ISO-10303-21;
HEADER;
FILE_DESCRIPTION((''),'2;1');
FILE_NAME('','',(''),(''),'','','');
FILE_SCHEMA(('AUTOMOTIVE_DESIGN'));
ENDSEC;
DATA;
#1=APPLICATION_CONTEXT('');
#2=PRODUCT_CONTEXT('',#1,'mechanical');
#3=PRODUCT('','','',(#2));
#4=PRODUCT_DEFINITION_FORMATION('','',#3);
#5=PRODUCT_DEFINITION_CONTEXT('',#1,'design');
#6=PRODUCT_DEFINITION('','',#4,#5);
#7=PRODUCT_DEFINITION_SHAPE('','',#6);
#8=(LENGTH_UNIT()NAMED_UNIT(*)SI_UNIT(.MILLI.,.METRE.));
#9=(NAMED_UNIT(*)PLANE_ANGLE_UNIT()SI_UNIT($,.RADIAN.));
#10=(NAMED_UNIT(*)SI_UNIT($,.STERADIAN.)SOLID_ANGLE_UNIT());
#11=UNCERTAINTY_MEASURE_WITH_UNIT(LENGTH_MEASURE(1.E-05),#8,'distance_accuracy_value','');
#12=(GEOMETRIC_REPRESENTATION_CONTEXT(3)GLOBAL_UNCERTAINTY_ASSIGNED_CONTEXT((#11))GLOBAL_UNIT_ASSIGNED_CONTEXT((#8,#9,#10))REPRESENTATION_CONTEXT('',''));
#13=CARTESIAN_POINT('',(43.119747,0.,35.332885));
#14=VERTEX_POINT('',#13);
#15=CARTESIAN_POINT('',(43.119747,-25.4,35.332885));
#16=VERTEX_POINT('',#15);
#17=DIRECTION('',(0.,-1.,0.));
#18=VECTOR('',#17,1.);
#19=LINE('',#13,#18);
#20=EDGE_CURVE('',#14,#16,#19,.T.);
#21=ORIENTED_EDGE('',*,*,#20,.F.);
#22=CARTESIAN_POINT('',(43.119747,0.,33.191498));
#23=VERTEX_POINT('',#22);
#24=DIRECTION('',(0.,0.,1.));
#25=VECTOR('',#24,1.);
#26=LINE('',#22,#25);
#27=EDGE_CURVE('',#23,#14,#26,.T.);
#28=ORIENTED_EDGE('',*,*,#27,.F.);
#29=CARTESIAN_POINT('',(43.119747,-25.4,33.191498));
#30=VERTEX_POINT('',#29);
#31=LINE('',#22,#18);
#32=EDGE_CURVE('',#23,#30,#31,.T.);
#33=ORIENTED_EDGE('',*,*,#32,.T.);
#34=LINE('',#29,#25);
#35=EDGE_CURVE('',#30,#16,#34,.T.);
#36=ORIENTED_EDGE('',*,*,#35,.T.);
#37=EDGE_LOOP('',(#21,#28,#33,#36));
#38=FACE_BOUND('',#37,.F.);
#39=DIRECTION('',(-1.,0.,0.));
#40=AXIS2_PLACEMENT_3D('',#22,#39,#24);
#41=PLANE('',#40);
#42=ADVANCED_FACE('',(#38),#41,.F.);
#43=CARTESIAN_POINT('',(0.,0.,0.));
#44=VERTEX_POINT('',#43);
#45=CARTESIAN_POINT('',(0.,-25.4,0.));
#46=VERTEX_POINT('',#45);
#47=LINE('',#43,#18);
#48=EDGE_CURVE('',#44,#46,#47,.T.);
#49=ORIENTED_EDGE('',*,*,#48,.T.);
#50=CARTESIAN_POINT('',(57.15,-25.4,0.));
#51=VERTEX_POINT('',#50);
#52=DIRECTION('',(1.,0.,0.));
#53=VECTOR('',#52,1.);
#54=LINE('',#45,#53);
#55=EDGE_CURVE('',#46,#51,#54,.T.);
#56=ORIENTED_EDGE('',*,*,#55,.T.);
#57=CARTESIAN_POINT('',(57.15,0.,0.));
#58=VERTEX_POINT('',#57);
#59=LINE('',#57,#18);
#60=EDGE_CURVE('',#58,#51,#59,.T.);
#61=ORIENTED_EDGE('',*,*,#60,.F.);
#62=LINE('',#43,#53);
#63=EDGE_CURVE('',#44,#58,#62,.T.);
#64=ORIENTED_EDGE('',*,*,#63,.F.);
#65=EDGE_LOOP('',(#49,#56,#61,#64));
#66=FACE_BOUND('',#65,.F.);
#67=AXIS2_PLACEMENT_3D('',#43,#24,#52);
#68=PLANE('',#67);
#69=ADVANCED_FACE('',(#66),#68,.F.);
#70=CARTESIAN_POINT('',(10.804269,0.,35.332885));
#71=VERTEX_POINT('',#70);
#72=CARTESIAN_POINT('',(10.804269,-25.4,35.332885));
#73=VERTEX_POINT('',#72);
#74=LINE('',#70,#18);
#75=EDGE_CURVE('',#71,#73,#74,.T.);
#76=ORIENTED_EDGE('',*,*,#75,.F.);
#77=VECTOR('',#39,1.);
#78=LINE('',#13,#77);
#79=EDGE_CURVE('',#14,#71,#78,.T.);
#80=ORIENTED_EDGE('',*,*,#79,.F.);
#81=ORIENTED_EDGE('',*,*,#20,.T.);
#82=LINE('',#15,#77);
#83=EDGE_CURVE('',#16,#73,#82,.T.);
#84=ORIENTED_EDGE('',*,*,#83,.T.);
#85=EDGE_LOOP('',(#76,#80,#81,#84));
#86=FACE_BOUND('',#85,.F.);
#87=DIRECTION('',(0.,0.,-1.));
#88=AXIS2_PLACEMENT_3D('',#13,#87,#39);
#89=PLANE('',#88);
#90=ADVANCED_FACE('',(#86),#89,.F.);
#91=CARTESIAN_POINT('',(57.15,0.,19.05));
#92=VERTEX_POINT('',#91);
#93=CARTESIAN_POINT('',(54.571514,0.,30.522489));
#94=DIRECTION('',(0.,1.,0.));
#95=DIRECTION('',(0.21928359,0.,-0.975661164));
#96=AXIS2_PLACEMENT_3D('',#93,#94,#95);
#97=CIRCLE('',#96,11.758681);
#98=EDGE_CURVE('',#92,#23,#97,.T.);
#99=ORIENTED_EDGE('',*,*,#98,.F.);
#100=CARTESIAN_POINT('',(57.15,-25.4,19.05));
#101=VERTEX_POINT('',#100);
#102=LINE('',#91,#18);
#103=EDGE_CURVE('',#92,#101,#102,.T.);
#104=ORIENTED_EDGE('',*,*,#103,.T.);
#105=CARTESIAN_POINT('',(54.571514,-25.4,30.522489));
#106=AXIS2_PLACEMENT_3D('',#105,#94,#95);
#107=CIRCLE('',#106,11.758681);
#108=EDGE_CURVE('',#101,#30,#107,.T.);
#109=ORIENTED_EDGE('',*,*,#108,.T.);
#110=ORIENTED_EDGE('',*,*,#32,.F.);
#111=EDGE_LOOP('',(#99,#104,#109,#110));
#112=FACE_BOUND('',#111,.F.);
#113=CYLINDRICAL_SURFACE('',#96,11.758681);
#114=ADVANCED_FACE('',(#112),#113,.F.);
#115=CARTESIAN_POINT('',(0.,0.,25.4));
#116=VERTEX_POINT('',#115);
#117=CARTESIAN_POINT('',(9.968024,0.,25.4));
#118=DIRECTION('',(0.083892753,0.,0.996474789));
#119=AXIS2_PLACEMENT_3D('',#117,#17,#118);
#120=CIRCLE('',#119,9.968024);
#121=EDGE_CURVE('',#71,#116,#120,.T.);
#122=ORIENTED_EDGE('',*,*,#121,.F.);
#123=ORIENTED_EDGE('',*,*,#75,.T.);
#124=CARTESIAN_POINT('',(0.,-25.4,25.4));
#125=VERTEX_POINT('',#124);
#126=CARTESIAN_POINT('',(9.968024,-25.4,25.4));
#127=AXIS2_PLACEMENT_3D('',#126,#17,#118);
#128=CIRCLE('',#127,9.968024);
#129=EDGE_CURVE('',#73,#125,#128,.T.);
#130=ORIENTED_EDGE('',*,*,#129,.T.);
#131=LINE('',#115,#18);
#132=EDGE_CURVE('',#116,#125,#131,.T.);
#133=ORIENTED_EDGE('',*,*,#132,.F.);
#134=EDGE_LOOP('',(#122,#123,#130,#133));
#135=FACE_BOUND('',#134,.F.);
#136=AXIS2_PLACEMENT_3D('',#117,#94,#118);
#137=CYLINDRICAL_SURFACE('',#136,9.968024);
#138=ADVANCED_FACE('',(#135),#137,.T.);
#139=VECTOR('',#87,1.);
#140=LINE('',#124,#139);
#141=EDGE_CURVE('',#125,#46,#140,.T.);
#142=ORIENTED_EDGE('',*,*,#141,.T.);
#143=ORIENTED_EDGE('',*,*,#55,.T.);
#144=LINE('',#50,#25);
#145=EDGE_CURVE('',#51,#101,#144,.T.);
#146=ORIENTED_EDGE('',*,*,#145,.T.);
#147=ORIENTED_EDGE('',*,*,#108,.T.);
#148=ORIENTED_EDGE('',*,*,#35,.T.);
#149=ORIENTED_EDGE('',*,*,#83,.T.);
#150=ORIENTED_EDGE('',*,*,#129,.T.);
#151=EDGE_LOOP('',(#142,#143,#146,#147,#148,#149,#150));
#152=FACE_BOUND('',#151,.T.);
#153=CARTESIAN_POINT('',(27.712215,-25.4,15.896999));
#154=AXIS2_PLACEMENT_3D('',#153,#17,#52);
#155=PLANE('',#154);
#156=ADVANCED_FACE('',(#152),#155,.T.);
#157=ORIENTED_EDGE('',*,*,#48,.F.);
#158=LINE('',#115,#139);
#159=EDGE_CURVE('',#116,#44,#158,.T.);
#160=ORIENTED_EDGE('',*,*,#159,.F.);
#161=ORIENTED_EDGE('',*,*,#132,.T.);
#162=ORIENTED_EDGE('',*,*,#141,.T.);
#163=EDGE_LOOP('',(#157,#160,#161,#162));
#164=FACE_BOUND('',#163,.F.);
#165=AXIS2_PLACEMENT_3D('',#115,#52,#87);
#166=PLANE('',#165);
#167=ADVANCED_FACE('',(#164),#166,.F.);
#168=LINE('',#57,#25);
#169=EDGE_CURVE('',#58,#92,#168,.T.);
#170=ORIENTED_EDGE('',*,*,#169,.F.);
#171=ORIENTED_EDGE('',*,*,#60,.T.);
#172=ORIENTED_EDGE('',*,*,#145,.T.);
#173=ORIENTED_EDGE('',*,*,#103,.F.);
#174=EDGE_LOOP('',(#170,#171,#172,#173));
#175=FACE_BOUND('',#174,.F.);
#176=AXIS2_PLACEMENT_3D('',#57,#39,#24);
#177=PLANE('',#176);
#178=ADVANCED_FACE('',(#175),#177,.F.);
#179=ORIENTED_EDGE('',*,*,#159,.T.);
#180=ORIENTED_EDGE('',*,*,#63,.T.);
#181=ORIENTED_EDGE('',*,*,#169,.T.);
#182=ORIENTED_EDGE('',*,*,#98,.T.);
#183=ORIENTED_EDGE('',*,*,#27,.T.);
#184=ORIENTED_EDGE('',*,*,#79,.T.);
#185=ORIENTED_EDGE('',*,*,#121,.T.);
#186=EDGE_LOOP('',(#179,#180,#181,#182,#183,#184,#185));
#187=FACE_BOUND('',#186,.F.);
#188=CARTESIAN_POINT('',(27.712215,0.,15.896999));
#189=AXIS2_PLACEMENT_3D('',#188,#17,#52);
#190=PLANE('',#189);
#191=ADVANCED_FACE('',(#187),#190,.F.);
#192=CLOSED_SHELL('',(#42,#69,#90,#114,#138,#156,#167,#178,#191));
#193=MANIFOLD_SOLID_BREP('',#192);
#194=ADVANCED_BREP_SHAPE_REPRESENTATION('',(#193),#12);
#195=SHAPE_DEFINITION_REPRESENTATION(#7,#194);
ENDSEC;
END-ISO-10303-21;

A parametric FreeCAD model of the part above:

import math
import FreeCAD as App
import Part
import Sketcher
from FreeCAD import Vector
Q = App.Units.Quantity

doc = App.newDocument("Part")
params = doc.addObject("Spreadsheet::Sheet", "Params")
for row, (alias, value) in enumerate([
    ("sketch1_height", "1 in"),
    ("sketch1_width", "2.25 in"),
    ("sketch1_height2", "0.75 in"),
    ("pad1_length", "1 in"),
], start=1):
    params.set(f"A{row}", alias)
    params.set(f"B{row}", "=" + value)
    params.setAlias(f"B{row}", alias)

body = doc.addObject("PartDesign::Body", "Body")

sketch1 = body.newObject("Sketcher::SketchObject", "Sketch")
sketch1.AttachmentSupport = (doc.getObject("XZ_Plane"), [""])
sketch1.MapMode = "FlatFace"
sketch1.addGeometry(Part.LineSegment(Vector(0, 25.4, 0), Vector(0, 0, 0)), False)
sketch1.addGeometry(Part.LineSegment(Vector(0, 0, 0), Vector(57.1, 0, 0)), False)
sketch1.addGeometry(Part.LineSegment(Vector(57.1, 0, 0), Vector(57.1, 19.1, 0)), False)
sketch1.addGeometry(Part.ArcOfCircle(Part.Circle(Vector(54.6, 30.5, 0), Vector(0, 0, 1), 11.8), math.radians(167), math.radians(283)), False)
sketch1.addGeometry(Part.LineSegment(Vector(43.1, 33.2, 0), Vector(43.1, 35.3, 0)), False)
sketch1.addGeometry(Part.LineSegment(Vector(43.1, 35.3, 0), Vector(10.8, 35.3, 0)), False)
sketch1.addGeometry(Part.ArcOfCircle(Part.Circle(Vector(10, 25.4, 0), Vector(0, 0, 1), 10), math.radians(85), math.radians(180)), False)
sketch1.addConstraint(Sketcher.Constraint("Coincident", 0, 2, 1, 1))
sketch1.addConstraint(Sketcher.Constraint("Coincident", 1, 2, 2, 1))
sketch1.addConstraint(Sketcher.Constraint("Coincident", 2, 2, 3, 2))
sketch1.addConstraint(Sketcher.Constraint("Coincident", 3, 1, 4, 1))
sketch1.addConstraint(Sketcher.Constraint("Coincident", 4, 2, 5, 1))
sketch1.addConstraint(Sketcher.Constraint("Coincident", 5, 2, 6, 1))
sketch1.addConstraint(Sketcher.Constraint("Tangent", 6, 2, 0, 1))
sketch1.addConstraint(Sketcher.Constraint("Vertical", 0))
sketch1.addConstraint(Sketcher.Constraint("Horizontal", 1))
sketch1.addConstraint(Sketcher.Constraint("Vertical", 2))
sketch1.addConstraint(Sketcher.Constraint("Vertical", 4))
sketch1.addConstraint(Sketcher.Constraint("Horizontal", 5))
sketch1.addConstraint(Sketcher.Constraint("Coincident", 0, 2, -1, 1))
sketch1.addConstraint(Sketcher.Constraint("DistanceY", 0, 2, 0, 1, Q("1 in")))
sketch1.addConstraint(Sketcher.Constraint("DistanceX", 1, 1, 1, 2, Q("2.25 in")))
sketch1.addConstraint(Sketcher.Constraint("DistanceY", 2, 1, 2, 2, Q("0.75 in")))
sketch1.addConstraint(Sketcher.Constraint("Radius", 3, Q("11.758681 mm")))
sketch1.addConstraint(Sketcher.Constraint("Radius", 6, Q("9.968024 mm")))
sketch1.addConstraint(Sketcher.Constraint("DistanceX", 5, 2, 5, 1, Q("32.315478 mm")))
sketch1.addConstraint(Sketcher.Constraint("DistanceY", 4, 1, 4, 2, Q("2.141387 mm")))
sketch1.addConstraint(Sketcher.Constraint("DistanceY", -1, 1, 3, 3, Q("30.522489 mm")))
sketch1.setExpression("Constraints[13]", "Params.sketch1_height")
sketch1.setExpression("Constraints[14]", "Params.sketch1_width")
sketch1.setExpression("Constraints[15]", "Params.sketch1_height2")
pad1 = body.newObject("PartDesign::Pad", "Pad")
pad1.Profile = sketch1
pad1.setExpression("Length", "Params.pad1_length")

doc.recompute()
